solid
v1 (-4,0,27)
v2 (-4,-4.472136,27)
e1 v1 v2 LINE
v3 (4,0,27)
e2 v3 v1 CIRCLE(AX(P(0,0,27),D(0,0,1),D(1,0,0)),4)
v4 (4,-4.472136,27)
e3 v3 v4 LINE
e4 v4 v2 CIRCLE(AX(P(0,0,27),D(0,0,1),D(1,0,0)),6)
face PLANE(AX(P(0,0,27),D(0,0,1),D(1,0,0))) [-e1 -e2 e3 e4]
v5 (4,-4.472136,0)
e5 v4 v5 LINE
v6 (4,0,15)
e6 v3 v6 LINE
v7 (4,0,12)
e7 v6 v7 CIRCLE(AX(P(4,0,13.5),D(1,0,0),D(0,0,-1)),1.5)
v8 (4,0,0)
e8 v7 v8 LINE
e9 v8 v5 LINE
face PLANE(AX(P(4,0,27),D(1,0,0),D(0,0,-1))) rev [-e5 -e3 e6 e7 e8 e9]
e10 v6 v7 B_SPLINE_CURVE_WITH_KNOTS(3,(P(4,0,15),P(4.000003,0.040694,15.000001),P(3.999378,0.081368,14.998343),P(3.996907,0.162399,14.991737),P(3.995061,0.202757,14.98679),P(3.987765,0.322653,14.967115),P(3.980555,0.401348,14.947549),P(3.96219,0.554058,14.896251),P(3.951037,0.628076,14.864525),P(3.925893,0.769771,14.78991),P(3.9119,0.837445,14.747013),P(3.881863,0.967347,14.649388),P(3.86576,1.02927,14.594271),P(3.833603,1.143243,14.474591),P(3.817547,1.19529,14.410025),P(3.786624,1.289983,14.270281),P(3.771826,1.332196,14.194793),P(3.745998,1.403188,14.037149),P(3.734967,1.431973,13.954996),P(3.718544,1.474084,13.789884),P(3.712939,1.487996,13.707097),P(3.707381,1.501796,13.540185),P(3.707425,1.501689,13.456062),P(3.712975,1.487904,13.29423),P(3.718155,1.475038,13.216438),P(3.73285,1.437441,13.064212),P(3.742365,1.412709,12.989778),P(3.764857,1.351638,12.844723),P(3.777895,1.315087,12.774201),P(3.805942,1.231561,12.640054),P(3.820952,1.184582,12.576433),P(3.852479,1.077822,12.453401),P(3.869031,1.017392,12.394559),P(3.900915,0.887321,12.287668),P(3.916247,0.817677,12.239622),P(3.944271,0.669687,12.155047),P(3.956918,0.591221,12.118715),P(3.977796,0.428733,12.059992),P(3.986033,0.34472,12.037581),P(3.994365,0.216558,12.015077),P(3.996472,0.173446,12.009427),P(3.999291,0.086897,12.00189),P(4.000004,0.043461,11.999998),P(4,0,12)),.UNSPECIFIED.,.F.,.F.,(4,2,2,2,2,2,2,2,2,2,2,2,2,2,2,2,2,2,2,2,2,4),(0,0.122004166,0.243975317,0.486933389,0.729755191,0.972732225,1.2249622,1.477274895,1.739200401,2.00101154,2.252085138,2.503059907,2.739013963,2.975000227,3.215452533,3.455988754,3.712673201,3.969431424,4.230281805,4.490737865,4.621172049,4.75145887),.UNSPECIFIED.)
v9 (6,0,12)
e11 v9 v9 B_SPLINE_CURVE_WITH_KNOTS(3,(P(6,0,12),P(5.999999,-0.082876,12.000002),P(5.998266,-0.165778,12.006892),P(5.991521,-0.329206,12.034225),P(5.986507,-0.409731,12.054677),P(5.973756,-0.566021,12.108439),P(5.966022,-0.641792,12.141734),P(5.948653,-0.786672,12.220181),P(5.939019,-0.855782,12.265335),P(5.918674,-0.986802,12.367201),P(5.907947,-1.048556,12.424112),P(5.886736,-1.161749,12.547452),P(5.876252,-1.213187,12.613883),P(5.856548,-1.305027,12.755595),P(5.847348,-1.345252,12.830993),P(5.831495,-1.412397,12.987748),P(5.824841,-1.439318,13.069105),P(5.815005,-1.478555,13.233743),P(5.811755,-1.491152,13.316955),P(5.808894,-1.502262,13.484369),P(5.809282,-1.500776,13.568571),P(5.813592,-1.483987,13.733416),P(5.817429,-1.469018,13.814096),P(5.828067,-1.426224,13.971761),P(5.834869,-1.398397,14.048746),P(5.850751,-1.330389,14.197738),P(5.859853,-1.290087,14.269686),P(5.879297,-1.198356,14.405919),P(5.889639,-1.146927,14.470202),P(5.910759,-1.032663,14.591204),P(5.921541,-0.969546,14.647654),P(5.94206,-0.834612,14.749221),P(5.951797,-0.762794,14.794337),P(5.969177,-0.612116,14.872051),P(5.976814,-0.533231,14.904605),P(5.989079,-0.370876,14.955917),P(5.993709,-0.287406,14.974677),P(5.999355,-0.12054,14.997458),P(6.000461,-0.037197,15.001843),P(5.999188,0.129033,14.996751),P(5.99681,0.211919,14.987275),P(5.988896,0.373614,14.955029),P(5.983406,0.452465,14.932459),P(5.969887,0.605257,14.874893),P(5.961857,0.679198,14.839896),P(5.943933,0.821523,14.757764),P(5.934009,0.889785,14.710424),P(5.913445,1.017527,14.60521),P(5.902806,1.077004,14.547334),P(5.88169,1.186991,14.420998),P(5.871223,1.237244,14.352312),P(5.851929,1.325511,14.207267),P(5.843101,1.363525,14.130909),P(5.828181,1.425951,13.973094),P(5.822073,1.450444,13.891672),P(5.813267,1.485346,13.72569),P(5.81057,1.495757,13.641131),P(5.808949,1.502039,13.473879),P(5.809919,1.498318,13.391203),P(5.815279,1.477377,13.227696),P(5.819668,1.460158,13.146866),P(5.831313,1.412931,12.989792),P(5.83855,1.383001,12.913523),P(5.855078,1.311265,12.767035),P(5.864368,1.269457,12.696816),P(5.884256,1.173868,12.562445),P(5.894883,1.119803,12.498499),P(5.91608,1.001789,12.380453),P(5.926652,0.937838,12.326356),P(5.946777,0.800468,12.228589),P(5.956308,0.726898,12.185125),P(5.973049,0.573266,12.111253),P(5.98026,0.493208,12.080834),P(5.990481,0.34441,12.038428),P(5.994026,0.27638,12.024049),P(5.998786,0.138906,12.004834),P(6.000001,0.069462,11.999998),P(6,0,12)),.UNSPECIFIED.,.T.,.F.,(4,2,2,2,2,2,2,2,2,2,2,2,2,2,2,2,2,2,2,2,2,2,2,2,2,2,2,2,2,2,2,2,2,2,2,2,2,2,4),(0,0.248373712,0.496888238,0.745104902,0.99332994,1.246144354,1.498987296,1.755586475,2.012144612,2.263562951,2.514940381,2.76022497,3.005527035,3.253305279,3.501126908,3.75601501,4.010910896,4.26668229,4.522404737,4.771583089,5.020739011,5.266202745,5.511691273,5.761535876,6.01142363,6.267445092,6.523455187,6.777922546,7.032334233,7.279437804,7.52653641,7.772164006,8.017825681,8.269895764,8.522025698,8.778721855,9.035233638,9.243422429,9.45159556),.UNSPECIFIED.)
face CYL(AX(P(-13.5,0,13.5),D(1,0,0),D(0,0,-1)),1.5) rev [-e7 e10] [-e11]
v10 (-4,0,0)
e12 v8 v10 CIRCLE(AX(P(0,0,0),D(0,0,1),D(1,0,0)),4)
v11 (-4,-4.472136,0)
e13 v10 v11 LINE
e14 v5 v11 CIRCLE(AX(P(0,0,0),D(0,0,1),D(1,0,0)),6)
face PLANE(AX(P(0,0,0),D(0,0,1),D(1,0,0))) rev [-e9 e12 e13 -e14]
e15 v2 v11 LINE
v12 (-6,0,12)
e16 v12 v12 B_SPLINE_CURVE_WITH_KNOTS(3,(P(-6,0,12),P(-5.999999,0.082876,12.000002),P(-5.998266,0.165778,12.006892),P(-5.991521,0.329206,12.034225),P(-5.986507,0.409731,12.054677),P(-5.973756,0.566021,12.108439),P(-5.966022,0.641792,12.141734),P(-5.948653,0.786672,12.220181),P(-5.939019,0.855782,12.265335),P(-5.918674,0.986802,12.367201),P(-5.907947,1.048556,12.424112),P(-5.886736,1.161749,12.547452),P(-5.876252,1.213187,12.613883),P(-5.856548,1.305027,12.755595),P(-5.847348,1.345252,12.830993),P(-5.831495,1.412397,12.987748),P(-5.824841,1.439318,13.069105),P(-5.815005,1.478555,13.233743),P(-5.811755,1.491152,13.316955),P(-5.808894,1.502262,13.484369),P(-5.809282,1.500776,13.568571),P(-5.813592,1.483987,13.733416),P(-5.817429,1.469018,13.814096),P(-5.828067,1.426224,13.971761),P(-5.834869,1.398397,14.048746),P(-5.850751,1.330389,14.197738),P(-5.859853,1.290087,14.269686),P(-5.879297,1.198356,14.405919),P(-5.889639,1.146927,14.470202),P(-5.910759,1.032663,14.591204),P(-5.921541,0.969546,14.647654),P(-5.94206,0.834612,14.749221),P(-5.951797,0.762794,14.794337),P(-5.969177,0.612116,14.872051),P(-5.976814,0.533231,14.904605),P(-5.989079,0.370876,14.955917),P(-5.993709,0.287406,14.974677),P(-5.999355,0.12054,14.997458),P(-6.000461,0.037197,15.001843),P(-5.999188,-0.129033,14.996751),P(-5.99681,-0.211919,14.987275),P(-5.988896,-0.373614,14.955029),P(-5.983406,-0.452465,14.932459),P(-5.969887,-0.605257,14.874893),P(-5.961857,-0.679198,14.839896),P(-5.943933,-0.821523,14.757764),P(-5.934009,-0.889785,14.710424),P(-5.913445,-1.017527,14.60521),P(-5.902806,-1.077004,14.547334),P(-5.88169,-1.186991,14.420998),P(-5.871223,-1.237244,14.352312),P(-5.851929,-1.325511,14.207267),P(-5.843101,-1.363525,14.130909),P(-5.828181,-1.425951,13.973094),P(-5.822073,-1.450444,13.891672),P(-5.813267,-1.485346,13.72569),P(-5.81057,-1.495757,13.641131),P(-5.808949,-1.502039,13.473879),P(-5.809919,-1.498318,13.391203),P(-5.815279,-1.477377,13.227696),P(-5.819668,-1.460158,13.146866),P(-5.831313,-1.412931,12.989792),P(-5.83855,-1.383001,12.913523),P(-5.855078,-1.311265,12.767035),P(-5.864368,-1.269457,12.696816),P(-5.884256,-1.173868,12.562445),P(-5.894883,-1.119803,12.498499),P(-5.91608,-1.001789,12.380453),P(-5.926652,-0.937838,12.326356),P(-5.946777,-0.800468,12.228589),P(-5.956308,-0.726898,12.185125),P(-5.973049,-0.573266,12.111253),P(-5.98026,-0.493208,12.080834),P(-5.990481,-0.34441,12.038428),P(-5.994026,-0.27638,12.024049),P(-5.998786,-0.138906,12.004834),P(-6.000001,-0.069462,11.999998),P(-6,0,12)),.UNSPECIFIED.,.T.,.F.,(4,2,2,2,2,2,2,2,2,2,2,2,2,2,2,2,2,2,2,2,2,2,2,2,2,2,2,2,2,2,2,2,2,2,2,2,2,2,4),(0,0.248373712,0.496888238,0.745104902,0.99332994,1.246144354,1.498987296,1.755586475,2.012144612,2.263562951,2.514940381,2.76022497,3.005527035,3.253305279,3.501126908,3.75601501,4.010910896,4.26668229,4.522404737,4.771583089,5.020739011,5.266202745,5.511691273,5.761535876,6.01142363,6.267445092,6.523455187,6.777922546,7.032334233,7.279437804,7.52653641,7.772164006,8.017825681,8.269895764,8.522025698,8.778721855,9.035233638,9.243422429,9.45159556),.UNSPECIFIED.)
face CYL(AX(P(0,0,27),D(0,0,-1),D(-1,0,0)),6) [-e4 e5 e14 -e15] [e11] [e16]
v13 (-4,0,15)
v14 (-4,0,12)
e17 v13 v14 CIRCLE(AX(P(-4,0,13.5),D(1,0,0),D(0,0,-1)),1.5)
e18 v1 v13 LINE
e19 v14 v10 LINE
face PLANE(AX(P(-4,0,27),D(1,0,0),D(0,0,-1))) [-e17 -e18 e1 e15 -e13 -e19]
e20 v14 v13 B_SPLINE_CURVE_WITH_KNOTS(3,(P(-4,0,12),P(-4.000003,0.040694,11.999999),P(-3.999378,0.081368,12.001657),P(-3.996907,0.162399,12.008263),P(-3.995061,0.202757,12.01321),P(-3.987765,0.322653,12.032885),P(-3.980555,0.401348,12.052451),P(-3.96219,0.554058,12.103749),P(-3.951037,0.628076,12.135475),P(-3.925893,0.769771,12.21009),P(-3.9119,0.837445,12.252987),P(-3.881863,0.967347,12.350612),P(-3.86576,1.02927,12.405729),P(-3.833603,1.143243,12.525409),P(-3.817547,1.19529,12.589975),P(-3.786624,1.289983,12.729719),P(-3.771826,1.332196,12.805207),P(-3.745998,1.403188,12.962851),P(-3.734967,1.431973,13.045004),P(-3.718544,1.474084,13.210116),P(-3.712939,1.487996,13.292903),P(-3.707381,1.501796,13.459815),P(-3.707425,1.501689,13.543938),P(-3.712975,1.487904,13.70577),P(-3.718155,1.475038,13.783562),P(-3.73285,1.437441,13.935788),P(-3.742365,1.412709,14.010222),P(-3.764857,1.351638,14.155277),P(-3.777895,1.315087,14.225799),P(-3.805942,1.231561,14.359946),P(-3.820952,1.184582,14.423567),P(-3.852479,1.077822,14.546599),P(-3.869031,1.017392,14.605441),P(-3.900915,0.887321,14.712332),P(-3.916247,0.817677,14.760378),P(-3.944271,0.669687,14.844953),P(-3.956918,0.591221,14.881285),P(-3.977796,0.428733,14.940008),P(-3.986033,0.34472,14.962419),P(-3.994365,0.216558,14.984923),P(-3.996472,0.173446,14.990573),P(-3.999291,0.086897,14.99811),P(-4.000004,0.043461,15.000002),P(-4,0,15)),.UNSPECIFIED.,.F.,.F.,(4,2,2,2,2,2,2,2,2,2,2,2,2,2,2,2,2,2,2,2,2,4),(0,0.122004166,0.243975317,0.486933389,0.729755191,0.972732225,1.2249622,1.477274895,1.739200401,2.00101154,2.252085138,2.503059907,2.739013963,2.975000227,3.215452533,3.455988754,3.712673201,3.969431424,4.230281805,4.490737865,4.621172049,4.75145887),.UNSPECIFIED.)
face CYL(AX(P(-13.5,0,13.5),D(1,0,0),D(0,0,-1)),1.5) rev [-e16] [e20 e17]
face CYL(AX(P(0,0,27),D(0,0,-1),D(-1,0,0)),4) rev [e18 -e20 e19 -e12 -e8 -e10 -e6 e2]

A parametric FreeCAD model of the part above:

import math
import FreeCAD as App
import Part
import Sketcher

doc = App.newDocument("Part")
body = doc.addObject("PartDesign::Body", "Body")

sketch1 = body.newObject("Sketcher::SketchObject", "Sketch")
sketch1.AttachmentSupport = (doc.getObject("XY_Plane"), [""])
sketch1.MapMode = "FlatFace"
sketch1.addGeometry(Part.LineSegment(App.Vector(-4, -4.472136, 0), App.Vector(-4, 0, 0)), False)
sketch1.addGeometry(Part.ArcOfCircle(Part.Circle(App.Vector(0, 0, 0), App.Vector(0, 0, 1), 4), math.radians(0), math.radians(180)), False)
sketch1.addGeometry(Part.LineSegment(App.Vector(4, 0, 0), App.Vector(4, -4.472136, 0)), False)
sketch1.addGeometry(Part.ArcOfCircle(Part.Circle(App.Vector(0, 0, 0), App.Vector(0, 0, 1), 6), math.radians(-48.189685), math.radians(228.189685)), False)
sketch1.addConstraint(Sketcher.Constraint("Tangent", 0, 2, 1, 2))
sketch1.addConstraint(Sketcher.Constraint("Tangent", 1, 1, 2, 1))
sketch1.addConstraint(Sketcher.Constraint("Coincident", 2, 2, 3, 1))
sketch1.addConstraint(Sketcher.Constraint("Coincident", 3, 2, 0, 1))
sketch1.addConstraint(Sketcher.Constraint("Vertical", 0))
sketch1.addConstraint(Sketcher.Constraint("Vertical", 2))
sketch1.addConstraint(Sketcher.Constraint("Coincident", 1, 3, -1, 1))
sketch1.addConstraint(Sketcher.Constraint("Coincident", 3, 3, -1, 1))
sketch1.addConstraint(Sketcher.Constraint("Radius", 1, 4.0))
sketch1.addConstraint(Sketcher.Constraint("Radius", 3, 6.0))
pad1 = body.newObject("PartDesign::Pad", "Pad")
pad1.Profile = sketch1
pad1.Length = 27

sketch2 = body.newObject("Sketcher::SketchObject", "Sketch001")
sketch2.AttachmentSupport = (doc.getObject("YZ_Plane"), [""])
sketch2.MapMode = "FlatFace"
sketch2.addGeometry(Part.Circle(App.Vector(0, 13.5, 0), App.Vector(0, 0, 1), 1.5), False)
sketch2.addConstraint(Sketcher.Constraint("PointOnObject", 0, 3, -2))
sketch2.addConstraint(Sketcher.Constraint("Diameter", 0, 3.0))
sketch2.addConstraint(Sketcher.Constraint("DistanceY", -1, 1, 0, 3, 13.5))
pocket1 = body.newObject("PartDesign::Pocket", "Pocket")
pocket1.Profile = sketch2
pocket1.Length = 27
pocket1.Midplane = True

doc.recompute()
